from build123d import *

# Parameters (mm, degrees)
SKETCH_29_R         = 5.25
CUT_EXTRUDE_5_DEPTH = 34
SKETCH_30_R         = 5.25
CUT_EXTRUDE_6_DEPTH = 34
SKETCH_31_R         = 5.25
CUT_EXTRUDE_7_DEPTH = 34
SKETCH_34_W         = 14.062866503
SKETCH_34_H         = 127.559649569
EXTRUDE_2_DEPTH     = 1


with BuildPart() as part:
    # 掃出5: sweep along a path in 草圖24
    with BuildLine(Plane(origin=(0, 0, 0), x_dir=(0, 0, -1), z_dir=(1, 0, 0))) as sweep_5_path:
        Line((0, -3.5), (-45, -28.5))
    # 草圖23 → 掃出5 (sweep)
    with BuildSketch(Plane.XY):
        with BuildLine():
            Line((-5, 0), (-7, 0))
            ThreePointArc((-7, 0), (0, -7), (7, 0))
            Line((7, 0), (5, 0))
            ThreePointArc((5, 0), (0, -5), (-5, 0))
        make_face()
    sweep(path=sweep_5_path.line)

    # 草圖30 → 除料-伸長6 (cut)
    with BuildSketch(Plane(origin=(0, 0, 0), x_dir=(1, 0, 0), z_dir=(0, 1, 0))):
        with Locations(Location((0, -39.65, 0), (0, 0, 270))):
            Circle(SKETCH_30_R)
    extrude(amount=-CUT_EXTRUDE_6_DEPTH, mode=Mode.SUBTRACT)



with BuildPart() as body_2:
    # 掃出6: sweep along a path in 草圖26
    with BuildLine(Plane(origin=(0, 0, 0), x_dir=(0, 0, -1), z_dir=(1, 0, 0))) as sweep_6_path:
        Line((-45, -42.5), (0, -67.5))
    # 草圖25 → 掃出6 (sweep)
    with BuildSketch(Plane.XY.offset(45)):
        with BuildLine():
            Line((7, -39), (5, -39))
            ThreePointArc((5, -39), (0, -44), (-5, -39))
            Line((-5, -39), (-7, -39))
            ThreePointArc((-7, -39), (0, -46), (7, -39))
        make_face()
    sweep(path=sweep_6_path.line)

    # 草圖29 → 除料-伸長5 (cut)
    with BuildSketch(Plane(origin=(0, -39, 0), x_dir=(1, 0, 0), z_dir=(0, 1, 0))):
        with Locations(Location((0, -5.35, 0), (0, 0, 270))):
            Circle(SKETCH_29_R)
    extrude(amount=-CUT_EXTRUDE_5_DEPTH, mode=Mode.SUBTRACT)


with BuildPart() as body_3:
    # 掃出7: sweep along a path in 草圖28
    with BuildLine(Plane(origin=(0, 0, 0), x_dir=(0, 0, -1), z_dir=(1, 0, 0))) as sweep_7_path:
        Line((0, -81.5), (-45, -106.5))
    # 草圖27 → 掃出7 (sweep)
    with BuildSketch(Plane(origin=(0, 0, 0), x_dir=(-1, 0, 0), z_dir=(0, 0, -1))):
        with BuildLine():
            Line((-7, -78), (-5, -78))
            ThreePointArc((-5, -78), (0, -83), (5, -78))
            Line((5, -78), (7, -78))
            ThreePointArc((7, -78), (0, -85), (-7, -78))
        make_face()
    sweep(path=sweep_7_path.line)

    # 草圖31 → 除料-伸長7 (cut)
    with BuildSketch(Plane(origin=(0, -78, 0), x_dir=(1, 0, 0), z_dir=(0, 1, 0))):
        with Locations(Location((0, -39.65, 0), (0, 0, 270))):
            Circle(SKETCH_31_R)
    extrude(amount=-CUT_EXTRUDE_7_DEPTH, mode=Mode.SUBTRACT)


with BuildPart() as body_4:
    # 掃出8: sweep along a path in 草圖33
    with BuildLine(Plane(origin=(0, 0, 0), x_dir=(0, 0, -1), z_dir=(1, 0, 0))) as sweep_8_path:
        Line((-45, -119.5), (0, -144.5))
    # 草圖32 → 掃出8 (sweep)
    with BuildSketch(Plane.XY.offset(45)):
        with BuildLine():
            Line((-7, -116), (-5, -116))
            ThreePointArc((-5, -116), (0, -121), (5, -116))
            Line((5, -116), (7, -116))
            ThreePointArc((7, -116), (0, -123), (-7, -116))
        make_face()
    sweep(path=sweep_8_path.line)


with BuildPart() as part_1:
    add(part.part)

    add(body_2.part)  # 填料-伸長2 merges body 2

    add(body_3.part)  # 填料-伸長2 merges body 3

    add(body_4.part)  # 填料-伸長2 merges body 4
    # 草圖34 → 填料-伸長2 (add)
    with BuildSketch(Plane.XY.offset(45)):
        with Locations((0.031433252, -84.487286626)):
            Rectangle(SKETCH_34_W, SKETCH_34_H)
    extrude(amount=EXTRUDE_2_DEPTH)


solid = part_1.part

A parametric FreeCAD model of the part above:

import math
import FreeCAD as App
import Part
import Sketcher

V = App.Vector

doc = App.newDocument("Part")
body = doc.addObject("PartDesign::Body", "Body")

# Sketch on XY plane
sketch1 = body.newObject("Sketcher::SketchObject", "Sketch")
sketch1.AttachmentSupport = (doc.getObject("XY_Plane"), [""])
sketch1.MapMode = "FlatFace"
sketch1.addGeometry(Part.LineSegment(V(-5, 0, 0), V(-7, 0, 0)), False)
sketch1.addGeometry(Part.ArcOfCircle(Part.Circle(V(0, 0, 0), V(0, 0, 1), 7), math.radians(180), math.radians(360)), False)
sketch1.addGeometry(Part.LineSegment(V(7, 0, 0), V(5, 0, 0)), False)
sketch1.addGeometry(Part.ArcOfCircle(Part.Circle(V(0, 0, 0), V(0, 0, 1), 5), math.radians(180), math.radians(360)), False)
sketch1.addConstraint(Sketcher.Constraint("Coincident", 0, 2, 1, 1))
sketch1.addConstraint(Sketcher.Constraint("Coincident", 1, 2, 2, 1))
sketch1.addConstraint(Sketcher.Constraint("Coincident", 2, 2, 3, 2))
sketch1.addConstraint(Sketcher.Constraint("Coincident", 3, 1, 0, 1))
sketch1.addConstraint(Sketcher.Constraint("Horizontal", 0))
sketch1.addConstraint(Sketcher.Constraint("Horizontal", 2))
sketch1.addConstraint(Sketcher.Constraint("Coincident", 1, 3, -1, 1))
sketch1.addConstraint(Sketcher.Constraint("Coincident", 3, 3, -1, 1))
sketch1.addConstraint(Sketcher.Constraint("PointOnObject", 0, 2, -1))
sketch1.addConstraint(Sketcher.Constraint("PointOnObject", 1, 2, -1))
sketch1.addConstraint(Sketcher.Constraint("Radius", 1, 7.0))
sketch1.addConstraint(Sketcher.Constraint("Radius", 3, 5.0))

# Sketch on an angled plane
sketch2 = body.newObject("Sketcher::SketchObject", "Sketch001")
sketch2.Placement = App.Placement(V(0, -2.674528, -1.485849), App.Rotation(V(0, 0.485642931, -0.874157276), V(1, 0, 0), V(0, -0.874157276, -0.485642931), "ZXY"))
sketch2.addGeometry(Part.LineSegment(V(-2, 0, 0), V(-53, 0, 0)), False)
sketch2.addConstraint(Sketcher.Constraint("Horizontal", 0))
sketch2.addConstraint(Sketcher.Constraint("PointOnObject", 0, 1, -1))
sketch2.addConstraint(Sketcher.Constraint("DistanceX", 0, 2, 0, 1, 51.478151))
sketch2.addConstraint(Sketcher.Constraint("DistanceX", 0, 2, -1, 1, 53.177901))
doc.recompute()

additivepipe = body.newObject("PartDesign::AdditivePipe", "AdditivePipe")
additivepipe.Profile = sketch1
additivepipe.Spine = (sketch2, ["Edge1"])

# Sketch on XZ plane
sketch3 = body.newObject("Sketcher::SketchObject", "Sketch002")
sketch3.AttachmentSupport = (doc.getObject("XZ_Plane"), [""])
sketch3.MapMode = "FlatFace"
sketch3.addGeometry(Part.Circle(V(0, 40, 0), V(0, 0, 1), 5), False)
sketch3.addConstraint(Sketcher.Constraint("PointOnObject", 0, 3, -2))
sketch3.addConstraint(Sketcher.Constraint("Diameter", 0, 10.5))
sketch3.addConstraint(Sketcher.Constraint("DistanceY", -1, 1, 0, 3, 39.65))
pocket1 = body.newObject("PartDesign::Pocket", "Pocket")
pocket1.Profile = sketch3
pocket1.Length = 34
pocket1.Reversed = True
body2 = doc.addObject("PartDesign::Body", "Body001")

# Sketch on XY plane
sketch4 = body2.newObject("Sketcher::SketchObject", "Sketch003")
sketch4.AttachmentSupport = (doc.getObject("XY_Plane001"), [""])
sketch4.MapMode = "FlatFace"
sketch4.AttachmentOffset = App.Placement(V(0, 0, 45), App.Rotation())
sketch4.addGeometry(Part.LineSegment(V(7, -39, 0), V(5, -39, 0)), False)
sketch4.addGeometry(Part.ArcOfCircle(Part.Circle(V(0, -39, 0), V(0, 0, 1), 5), math.radians(180), math.radians(360)), False)
sketch4.addGeometry(Part.LineSegment(V(-5, -39, 0), V(-7, -39, 0)), False)
sketch4.addGeometry(Part.ArcOfCircle(Part.Circle(V(0, -39, 0), V(0, 0, 1), 7), math.radians(180), math.radians(360)), False)
sketch4.addConstraint(Sketcher.Constraint("Coincident", 0, 2, 1, 2))
sketch4.addConstraint(Sketcher.Constraint("Coincident", 1, 1, 2, 1))
sketch4.addConstraint(Sketcher.Constraint("Coincident", 2, 2, 3, 1))
sketch4.addConstraint(Sketcher.Constraint("Coincident", 3, 2, 0, 1))
sketch4.addConstraint(Sketcher.Constraint("Horizontal", 0))
sketch4.addConstraint(Sketcher.Constraint("Horizontal", 2))
sketch4.addConstraint(Sketcher.Constraint("Coincident", 3, 3, 1, 3))
sketch4.addConstraint(Sketcher.Constraint("Symmetric", 0, 2, 1, 1, -2))
sketch4.addConstraint(Sketcher.Constraint("Horizontal", 3, 3, 0, 2))
sketch4.addConstraint(Sketcher.Constraint("Radius", 1, 5.0))
sketch4.addConstraint(Sketcher.Constraint("Radius", 3, 7.0))
sketch4.addConstraint(Sketcher.Constraint("DistanceY", 1, 3, -1, 1, 39.0))

# Sketch on an angled plane
sketch5 = body2.newObject("Sketcher::SketchObject", "Sketch004")
sketch5.Placement = App.Placement(V(0, -51.580189, 28.65566), App.Rotation(V(0, 0.485642931, 0.874157276), V(1, 0, 0), V(0, 0.874157276, -0.485642931), "ZXY"))
sketch5.addGeometry(Part.LineSegment(V(19, 0, 0), V(-33, 0, 0)), False)
sketch5.addConstraint(Sketcher.Constraint("Horizontal", 0))
sketch5.addConstraint(Sketcher.Constraint("PointOnObject", 0, 1, -1))
sketch5.addConstraint(Sketcher.Constraint("DistanceX", 0, 2, 0, 1, 51.478151))
sketch5.addConstraint(Sketcher.Constraint("DistanceX", -1, 1, 0, 1, 18.697253))
doc.recompute()

additivepipe2 = body2.newObject("PartDesign::AdditivePipe", "AdditivePipe001")
additivepipe2.Profile = sketch4
additivepipe2.Spine = (sketch5, ["Edge1"])

# Sketch on XZ plane
sketch6 = body2.newObject("Sketcher::SketchObject", "Sketch005")
sketch6.AttachmentSupport = (doc.getObject("XZ_Plane001"), [""])
sketch6.MapMode = "FlatFace"
sketch6.AttachmentOffset = App.Placement(V(0, 0, 39), App.Rotation())
sketch6.addGeometry(Part.Circle(V(0, 5, 0), V(0, 0, 1), 5), False)
sketch6.addConstraint(Sketcher.Constraint("PointOnObject", 0, 3, -2))
sketch6.addConstraint(Sketcher.Constraint("Diameter", 0, 10.5))
sketch6.addConstraint(Sketcher.Constraint("DistanceY", -1, 1, 0, 3, 5.35))
pocket2 = body2.newObject("PartDesign::Pocket", "Pocket001")
pocket2.Profile = sketch6
pocket2.Length = 34
pocket2.Reversed = True
body3 = doc.addObject("PartDesign::Body", "Body002")

# Sketch on XY plane
sketch7 = body3.newObject("Sketcher::SketchObject", "Sketch006")
sketch7.AttachmentSupport = (doc.getObject("XY_Plane002"), [""])
sketch7.MapMode = "FlatFace"
sketch7.addGeometry(Part.LineSegment(V(5, -78, 0), V(7, -78, 0)), False)
sketch7.addGeometry(Part.ArcOfCircle(Part.Circle(V(0, -78, 0), V(0, 0, 1), 7), math.radians(180), math.radians(360)), False)
sketch7.addGeometry(Part.LineSegment(V(-7, -78, 0), V(-5, -78, 0)), False)
sketch7.addGeometry(Part.ArcOfCircle(Part.Circle(V(0, -78, 0), V(0, 0, 1), 5), math.radians(180), math.radians(360)), False)
sketch7.addConstraint(Sketcher.Constraint("Coincident", 0, 2, 1, 2))
sketch7.addConstraint(Sketcher.Constraint("Coincident", 1, 1, 2, 1))
sketch7.addConstraint(Sketcher.Constraint("Coincident", 2, 2, 3, 1))
sketch7.addConstraint(Sketcher.Constraint("Coincident", 3, 2, 0, 1))
sketch7.addConstraint(Sketcher.Constraint("Horizontal", 0))
sketch7.addConstraint(Sketcher.Constraint("Horizontal", 2))
sketch7.addConstraint(Sketcher.Constraint("Coincident", 3, 3, 1, 3))
sketch7.addConstraint(Sketcher.Constraint("Symmetric", 0, 2, 1, 1, -2))
sketch7.addConstraint(Sketcher.Constraint("Horizontal", 3, 3, 0, 2))
sketch7.addConstraint(Sketcher.Constraint("Radius", 1, 7.0))
sketch7.addConstraint(Sketcher.Constraint("Radius", 3, 5.0))
sketch7.addConstraint(Sketcher.Constraint("DistanceY", 1, 3, -1, 1, 78.0))

# Sketch on an angled plane
sketch8 = body3.newObject("Sketcher::SketchObject", "Sketch007")
sketch8.Placement = App.Placement(V(0, -62.278302, -34.599057), App.Rotation(V(0, 0.485642931, -0.874157276), V(1, 0, 0), V(0, -0.874157276, -0.485642931), "ZXY"))
sketch8.addGeometry(Part.LineSegment(V(-40, 0, 0), V(-91, 0, 0)), False)
sketch8.addConstraint(Sketcher.Constraint("Horizontal", 0))
sketch8.addConstraint(Sketcher.Constraint("PointOnObject", 0, 1, -1))
sketch8.addConstraint(Sketcher.Constraint("DistanceX", 0, 2, 0, 1, 51.478151))
sketch8.addConstraint(Sketcher.Constraint("DistanceX", 0, 1, -1, 1, 39.579899))
doc.recompute()

additivepipe3 = body3.newObject("PartDesign::AdditivePipe", "AdditivePipe002")
additivepipe3.Profile = sketch7
additivepipe3.Spine = (sketch8, ["Edge1"])

# Sketch on XZ plane
sketch9 = body3.newObject("Sketcher::SketchObject", "Sketch008")
sketch9.AttachmentSupport = (doc.getObject("XZ_Plane002"), [""])
sketch9.MapMode = "FlatFace"
sketch9.AttachmentOffset = App.Placement(V(0, 0, 78), App.Rotation())
sketch9.addGeometry(Part.Circle(V(0, 40, 0), V(0, 0, 1), 5), False)
sketch9.addConstraint(Sketcher.Constraint("PointOnObject", 0, 3, -2))
sketch9.addConstraint(Sketcher.Constraint("Diameter", 0, 10.5))
sketch9.addConstraint(Sketcher.Constraint("DistanceY", -1, 1, 0, 3, 39.65))
pocket3 = body3.newObject("PartDesign::Pocket", "Pocket002")
pocket3.Profile = sketch9
pocket3.Length = 34
pocket3.Reversed = True
body4 = doc.addObject("PartDesign::Body", "Body003")

# Sketch on XY plane
sketch10 = body4.newObject("Sketcher::SketchObject", "Sketch009")
sketch10.AttachmentSupport = (doc.getObject("XY_Plane003"), [""])
sketch10.MapMode = "FlatFace"
sketch10.AttachmentOffset = App.Placement(V(0, 0, 45), App.Rotation())
sketch10.addGeometry(Part.LineSegment(V(-5, -116, 0), V(-7, -116, 0)), False)
sketch10.addGeometry(Part.ArcOfCircle(Part.Circle(V(0, -116, 0), V(0, 0, 1), 7), math.radians(180), math.radians(360)), False)
sketch10.addGeometry(Part.LineSegment(V(7, -116, 0), V(5, -116, 0)), False)
sketch10.addGeometry(Part.ArcOfCircle(Part.Circle(V(0, -116, 0), V(0, 0, 1), 5), math.radians(180), math.radians(360)), False)
sketch10.addConstraint(Sketcher.Constraint("Coincident", 0, 2, 1, 1))
sketch10.addConstraint(Sketcher.Constraint("Coincident", 1, 2, 2, 1))
sketch10.addConstraint(Sketcher.Constraint("Coincident", 2, 2, 3, 2))
sketch10.addConstraint(Sketcher.Constraint("Coincident", 3, 1, 0, 1))
sketch10.addConstraint(Sketcher.Constraint("Horizontal", 0))
sketch10.addConstraint(Sketcher.Constraint("Horizontal", 2))
sketch10.addConstraint(Sketcher.Constraint("Coincident", 3, 3, 1, 3))
sketch10.addConstraint(Sketcher.Constraint("Symmetric", 0, 2, 1, 2, -2))
sketch10.addConstraint(Sketcher.Constraint("Horizontal", 3, 3, 0, 2))
sketch10.addConstraint(Sketcher.Constraint("Radius", 1, 7.0))
sketch10.addConstraint(Sketcher.Constraint("Radius", 3, 5.0))
sketch10.addConstraint(Sketcher.Constraint("DistanceY", 1, 3, -1, 1, 116.0))

# Sketch on an angled plane
sketch11 = body4.newObject("Sketcher::SketchObject", "Sketch010")
sketch11.Placement = App.Placement(V(0, -110.419811, 61.34434), App.Rotation(V(0, 0.485642931, 0.874157276), V(1, 0, 0), V(0, 0.874157276, -0.485642931), "ZXY"))
sketch11.addGeometry(Part.LineSegment(V(-19, 0, 0), V(-70, 0, 0)), False)
sketch11.addConstraint(Sketcher.Constraint("Horizontal", 0))
sketch11.addConstraint(Sketcher.Constraint("PointOnObject", 0, 1, -1))
sketch11.addConstraint(Sketcher.Constraint("DistanceX", 0, 2, 0, 1, 51.478151))
sketch11.addConstraint(Sketcher.Constraint("DistanceX", 0, 1, -1, 1, 18.697253))
doc.recompute()

additivepipe4 = body4.newObject("PartDesign::AdditivePipe", "AdditivePipe003")
additivepipe4.Profile = sketch10
additivepipe4.Spine = (sketch11, ["Edge1"])
body.AllowCompound = True
doc.recompute()

boolean = body.newObject("PartDesign::Boolean", "Boolean")
boolean.Type = "Fuse"
boolean.addObjects([body2])
doc.recompute()

boolean2 = body.newObject("PartDesign::Boolean", "Boolean001")
boolean2.Type = "Fuse"
boolean2.addObjects([body3])
doc.recompute()

boolean3 = body.newObject("PartDesign::Boolean", "Boolean002")
boolean3.Type = "Fuse"
boolean3.addObjects([body4])

# Sketch on XY plane
sketch12 = body.newObject("Sketcher::SketchObject", "Sketch011")
sketch12.AttachmentSupport = (doc.getObject("XY_Plane"), [""])
sketch12.MapMode = "FlatFace"
sketch12.AttachmentOffset = App.Placement(V(0, 0, 45), App.Rotation())
sketch12.addGeometry(Part.LineSegment(V(-7, -21, 0), V(-7, -148, 0)), False)
sketch12.addGeometry(Part.LineSegment(V(-7, -148, 0), V(7, -148, 0)), False)
sketch12.addGeometry(Part.LineSegment(V(7, -148, 0), V(7, -21, 0)), False)
sketch12.addGeometry(Part.LineSegment(V(7, -21, 0), V(-7, -21, 0)), False)
sketch12.addConstraint(Sketcher.Constraint("Coincident", 0, 2, 1, 1))
sketch12.addConstraint(Sketcher.Constraint("Coincident", 1, 2, 2, 1))
sketch12.addConstraint(Sketcher.Constraint("Coincident", 2, 2, 3, 1))
sketch12.addConstraint(Sketcher.Constraint("Coincident", 3, 2, 0, 1))
sketch12.addConstraint(Sketcher.Constraint("Vertical", 0))
sketch12.addConstraint(Sketcher.Constraint("Horizontal", 1))
sketch12.addConstraint(Sketcher.Constraint("Vertical", 2))
sketch12.addConstraint(Sketcher.Constraint("Horizontal", 3))
sketch12.addConstraint(Sketcher.Constraint("DistanceX", 0, 2, -1, 1, 7.0))
sketch12.addConstraint(Sketcher.Constraint("DistanceY", 0, 2, 0, 1, 127.55965))
sketch12.addConstraint(Sketcher.Constraint("DistanceX", 1, 1, 1, 2, 14.062867))
sketch12.addConstraint(Sketcher.Constraint("DistanceY", 0, 2, -1, 1, 148.267111))
pad1 = body.newObject("PartDesign::Pad", "Pad")
pad1.Profile = sketch12
pad1.Length = 1

doc.recompute()
